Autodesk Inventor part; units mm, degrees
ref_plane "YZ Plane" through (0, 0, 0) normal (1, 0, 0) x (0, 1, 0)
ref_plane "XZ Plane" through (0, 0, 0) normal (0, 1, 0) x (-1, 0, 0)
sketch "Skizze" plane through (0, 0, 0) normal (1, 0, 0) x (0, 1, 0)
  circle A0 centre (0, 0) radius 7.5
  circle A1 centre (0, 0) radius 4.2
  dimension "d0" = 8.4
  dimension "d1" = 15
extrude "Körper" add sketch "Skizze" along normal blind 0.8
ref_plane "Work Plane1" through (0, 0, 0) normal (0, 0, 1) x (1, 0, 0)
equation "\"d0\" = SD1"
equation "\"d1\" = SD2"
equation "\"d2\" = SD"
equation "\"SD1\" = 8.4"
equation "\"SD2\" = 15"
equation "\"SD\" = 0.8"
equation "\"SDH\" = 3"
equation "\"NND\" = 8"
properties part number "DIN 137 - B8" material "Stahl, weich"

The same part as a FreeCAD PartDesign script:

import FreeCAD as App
import Part
import Sketcher

doc = App.newDocument("Part")
params = doc.addObject("Spreadsheet::Sheet", "Params")
for row, (alias, value) in enumerate([
    ("sketch1_diameter", "15 mm"),
    ("sketch1_diameter2", "8.4 mm"),
    ("pad1_length", "0.8 mm"),
], start=1):
    params.set(f"A{row}", alias)
    params.set(f"B{row}", "=" + value)
    params.setAlias(f"B{row}", alias)

body = doc.addObject("PartDesign::Body", "Body")

# Sketch on YZ plane
sketch1 = doc.addObject("Sketcher::SketchObject", "Sketch")
body.addObject(sketch1)
sketch1.AttachmentSupport = (doc.YZ_Plane, [""])
sketch1.MapMode = "FlatFace"
sketch1.addGeometry(Part.Circle(App.Vector(0, 0, 0), App.Vector(0, 0, 1), 7.5), False)
sketch1.addGeometry(Part.Circle(App.Vector(0, 0, 0), App.Vector(0, 0, 1), 4.2), False)
sketch1.addConstraint(Sketcher.Constraint("Coincident", 0, 3, -1, 1))
sketch1.addConstraint(Sketcher.Constraint("Coincident", 1, 3, -1, 1))
sketch1.addConstraint(Sketcher.Constraint("Diameter", 0, 15.0))
sketch1.addConstraint(Sketcher.Constraint("Diameter", 1, 8.4))
sketch1.setExpression("Constraints[2]", "Params.sketch1_diameter")
sketch1.setExpression("Constraints[3]", "Params.sketch1_diameter2")
pad1 = doc.addObject("PartDesign::Pad", "Pad")
body.addObject(pad1)
pad1.Profile = sketch1
pad1.setExpression("Length", "Params.pad1_length")

doc.recompute()
